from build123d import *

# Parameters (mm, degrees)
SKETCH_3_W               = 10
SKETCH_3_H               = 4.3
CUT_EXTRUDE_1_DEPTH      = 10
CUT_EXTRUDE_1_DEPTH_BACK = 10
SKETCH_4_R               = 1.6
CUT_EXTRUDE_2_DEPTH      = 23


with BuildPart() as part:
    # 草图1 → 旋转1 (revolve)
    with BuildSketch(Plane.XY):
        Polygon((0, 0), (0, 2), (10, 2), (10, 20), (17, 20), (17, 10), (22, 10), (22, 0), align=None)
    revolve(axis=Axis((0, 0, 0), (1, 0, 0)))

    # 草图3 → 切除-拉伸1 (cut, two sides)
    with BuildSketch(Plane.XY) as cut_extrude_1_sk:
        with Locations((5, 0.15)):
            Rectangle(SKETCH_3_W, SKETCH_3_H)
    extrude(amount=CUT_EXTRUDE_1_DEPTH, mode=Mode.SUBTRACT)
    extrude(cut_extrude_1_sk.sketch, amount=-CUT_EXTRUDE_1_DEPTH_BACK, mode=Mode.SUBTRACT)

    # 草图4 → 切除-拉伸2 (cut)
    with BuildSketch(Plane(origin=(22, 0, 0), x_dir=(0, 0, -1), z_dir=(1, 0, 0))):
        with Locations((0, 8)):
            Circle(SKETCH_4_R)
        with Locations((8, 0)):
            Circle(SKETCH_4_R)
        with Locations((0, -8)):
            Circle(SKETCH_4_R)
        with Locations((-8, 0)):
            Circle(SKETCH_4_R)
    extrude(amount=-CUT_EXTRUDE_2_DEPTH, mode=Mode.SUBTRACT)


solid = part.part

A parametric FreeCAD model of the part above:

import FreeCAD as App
import Part
import Sketcher
Q = App.Units.Quantity


def add_polygon(sketch, points):
    """Adds a closed chain of lines whose ends are joined by coincident constraints."""
    first, n = sketch.GeometryCount, len(points)
    for a, b in zip(points, points[1:] + points[:1]):
        sketch.addGeometry(Part.LineSegment(App.Vector(*a, 0), App.Vector(*b, 0)), False)
    for i in range(n):
        sketch.addConstraint(Sketcher.Constraint("Coincident", first + i, 2, first + (i + 1) % n, 1))

doc = App.newDocument("Part")
body = doc.addObject("PartDesign::Body", "Body")

sketch1 = body.newObject("Sketcher::SketchObject", "Sketch")
sketch1.AttachmentSupport = (doc.getObject("XY_Plane"), [""])
sketch1.MapMode = "FlatFace"
add_polygon(sketch1, [(0, 2), (0, 0), (22, 0), (22, 10), (17, 10), (17, 20), (10, 20), (10, 2)])
sketch1.addConstraint(Sketcher.Constraint("Vertical", 0))
sketch1.addConstraint(Sketcher.Constraint("Horizontal", 1))
sketch1.addConstraint(Sketcher.Constraint("Vertical", 2))
sketch1.addConstraint(Sketcher.Constraint("Horizontal", 3))
sketch1.addConstraint(Sketcher.Constraint("Vertical", 4))
sketch1.addConstraint(Sketcher.Constraint("Horizontal", 5))
sketch1.addConstraint(Sketcher.Constraint("Vertical", 6))
sketch1.addConstraint(Sketcher.Constraint("Horizontal", 7))
sketch1.addConstraint(Sketcher.Constraint("Coincident", 0, 2, -1, 1))
sketch1.addConstraint(Sketcher.Constraint("Equal", 7, 2))
sketch1.addConstraint(Sketcher.Constraint("Equal", 2, 4))
sketch1.addConstraint(Sketcher.Constraint("DistanceX", 1, 1, 1, 2, Q("22 mm")))
sketch1.addConstraint(Sketcher.Constraint("DistanceX", 3, 2, 3, 1, Q("5 mm")))
sketch1.addConstraint(Sketcher.Constraint("DistanceX", 5, 2, 5, 1, Q("7 mm")))
sketch1.addConstraint(Sketcher.Constraint("DistanceY", 0, 2, 0, 1, Q("2 mm")))
revolution = body.newObject("PartDesign::Revolution", "Revolution")
revolution.Profile = sketch1
revolution.ReferenceAxis = (sketch1, ["H_Axis"])
revolution.Angle = 360

sketch2 = body.newObject("Sketcher::SketchObject", "Sketch001")
sketch2.AttachmentSupport = (doc.getObject("XY_Plane"), [""])
sketch2.MapMode = "FlatFace"
add_polygon(sketch2, [(0, 2.3), (0, -2), (10, -2), (10, 2.3)])
sketch2.addConstraint(Sketcher.Constraint("Vertical", 0))
sketch2.addConstraint(Sketcher.Constraint("Horizontal", 1))
sketch2.addConstraint(Sketcher.Constraint("Vertical", 2))
sketch2.addConstraint(Sketcher.Constraint("Horizontal", 3))
sketch2.addConstraint(Sketcher.Constraint("PointOnObject", 0, 2, -2))
sketch2.addConstraint(Sketcher.Constraint("DistanceX", 1, 1, 1, 2, Q("10 mm")))
sketch2.addConstraint(Sketcher.Constraint("DistanceY", 0, 2, 0, 1, Q("4.3 mm")))
sketch2.addConstraint(Sketcher.Constraint("DistanceY", 0, 2, -1, 1, Q("2 mm")))
pocket1 = body.newObject("PartDesign::Pocket", "Pocket")
pocket1.Profile = sketch2
pocket1.Type = "ThroughAll"
pocket1.Midplane = True

sketch3 = body.newObject("Sketcher::SketchObject", "Sketch002")
sketch3.AttachmentSupport = (doc.getObject("YZ_Plane"), [""])
sketch3.MapMode = "FlatFace"
sketch3.AttachmentOffset = App.Placement(App.Vector(0, 0, 22), App.Rotation())
sketch3.addGeometry(Part.Circle(App.Vector(8, 0, 0), App.Vector(0, 0, 1), 1.6), False)
sketch3.addGeometry(Part.Circle(App.Vector(0, -8, 0), App.Vector(0, 0, 1), 1.6), False)
sketch3.addGeometry(Part.Circle(App.Vector(-8, 0, 0), App.Vector(0, 0, 1), 1.6), False)
sketch3.addGeometry(Part.Circle(App.Vector(0, 8, 0), App.Vector(0, 0, 1), 1.6), False)
sketch3.addConstraint(Sketcher.Constraint("Equal", 0, 1))
sketch3.addConstraint(Sketcher.Constraint("Equal", 1, 2))
sketch3.addConstraint(Sketcher.Constraint("Equal", 2, 3))
sketch3.addConstraint(Sketcher.Constraint("Symmetric", 0, 3, 2, 3, -1, 1))
sketch3.addConstraint(Sketcher.Constraint("Symmetric", 1, 3, 3, 3, -1, 1))
sketch3.addConstraint(Sketcher.Constraint("PointOnObject", 0, 3, -1))
sketch3.addConstraint(Sketcher.Constraint("PointOnObject", 1, 3, -2))
sketch3.addConstraint(Sketcher.Constraint("Diameter", 0, Q("3.2 mm")))
sketch3.addConstraint(Sketcher.Constraint("DistanceX", -1, 1, 0, 3, Q("8 mm")))
sketch3.addConstraint(Sketcher.Constraint("DistanceY", 1, 3, -1, 1, Q("8 mm")))
pocket2 = body.newObject("PartDesign::Pocket", "Pocket001")
pocket2.Profile = sketch3
pocket2.Length = 23

doc.recompute()
